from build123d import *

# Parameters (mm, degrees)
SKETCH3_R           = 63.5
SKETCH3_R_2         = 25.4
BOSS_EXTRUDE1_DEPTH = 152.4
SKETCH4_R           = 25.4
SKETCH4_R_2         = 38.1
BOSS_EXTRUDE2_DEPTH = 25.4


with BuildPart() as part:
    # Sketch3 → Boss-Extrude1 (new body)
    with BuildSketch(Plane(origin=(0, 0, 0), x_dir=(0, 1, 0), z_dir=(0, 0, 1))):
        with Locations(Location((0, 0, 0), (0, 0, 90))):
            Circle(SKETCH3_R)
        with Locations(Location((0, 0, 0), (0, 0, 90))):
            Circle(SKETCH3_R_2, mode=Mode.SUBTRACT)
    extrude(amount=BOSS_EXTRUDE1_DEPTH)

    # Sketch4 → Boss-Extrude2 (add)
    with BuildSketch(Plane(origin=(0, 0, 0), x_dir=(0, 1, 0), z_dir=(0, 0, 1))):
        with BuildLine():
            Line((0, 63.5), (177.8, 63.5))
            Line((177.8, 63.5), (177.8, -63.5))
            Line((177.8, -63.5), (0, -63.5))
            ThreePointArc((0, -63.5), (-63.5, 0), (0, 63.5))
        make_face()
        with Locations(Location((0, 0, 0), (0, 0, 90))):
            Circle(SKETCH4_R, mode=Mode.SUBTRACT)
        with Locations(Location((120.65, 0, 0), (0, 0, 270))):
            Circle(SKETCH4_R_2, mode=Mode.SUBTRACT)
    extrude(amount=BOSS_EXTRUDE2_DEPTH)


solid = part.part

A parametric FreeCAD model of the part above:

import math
import FreeCAD as App
import Part
import Sketcher
Q = App.Units.Quantity

doc = App.newDocument("Part")
body = doc.addObject("PartDesign::Body", "Body")

# Sketch on XY plane
sketch1 = body.newObject("Sketcher::SketchObject", "Sketch")
sketch1.AttachmentSupport = (doc.getObject("XY_Plane"), [""])
sketch1.MapMode = "FlatFace"
sketch1.addGeometry(Part.Circle(App.Vector(0, 0, 0), App.Vector(0, 0, 1), 64), False)
sketch1.addGeometry(Part.Circle(App.Vector(0, 0, 0), App.Vector(0, 0, 1), 25), False)
sketch1.addConstraint(Sketcher.Constraint("Coincident", 0, 3, -1, 1))
sketch1.addConstraint(Sketcher.Constraint("Coincident", 1, 3, -1, 1))
sketch1.addConstraint(Sketcher.Constraint("Diameter", 0, Q("5 in")))
sketch1.addConstraint(Sketcher.Constraint("Diameter", 1, Q("2 in")))
pad1 = body.newObject("PartDesign::Pad", "Pad")
pad1.Profile = sketch1
pad1.Length = Q("6 in")

# Sketch on XY plane
sketch2 = body.newObject("Sketcher::SketchObject", "Sketch001")
sketch2.AttachmentSupport = (doc.getObject("XY_Plane"), [""])
sketch2.MapMode = "FlatFace"
sketch2.addGeometry(Part.LineSegment(App.Vector(-64, 178, 0), App.Vector(-64, 0, 0)), False)
sketch2.addGeometry(Part.ArcOfCircle(Part.Circle(App.Vector(0, 0, 0), App.Vector(0, 0, 1), 64), math.radians(180), math.radians(360)), False)
sketch2.addGeometry(Part.LineSegment(App.Vector(64, 0, 0), App.Vector(64, 178, 0)), False)
sketch2.addGeometry(Part.LineSegment(App.Vector(64, 178, 0), App.Vector(-64, 178, 0)), False)
sketch2.addGeometry(Part.Circle(App.Vector(0, 121, 0), App.Vector(0, 0, 1), 38), False)
sketch2.addGeometry(Part.Circle(App.Vector(0, 0, 0), App.Vector(0, 0, 1), 25), False)
sketch2.addConstraint(Sketcher.Constraint("Tangent", 0, 2, 1, 1))
sketch2.addConstraint(Sketcher.Constraint("Tangent", 1, 2, 2, 1))
sketch2.addConstraint(Sketcher.Constraint("Coincident", 2, 2, 3, 1))
sketch2.addConstraint(Sketcher.Constraint("Coincident", 3, 2, 0, 1))
sketch2.addConstraint(Sketcher.Constraint("Vertical", 0))
sketch2.addConstraint(Sketcher.Constraint("Vertical", 2))
sketch2.addConstraint(Sketcher.Constraint("Horizontal", 3))
sketch2.addConstraint(Sketcher.Constraint("Coincident", 1, 3, -1, 1))
sketch2.addConstraint(Sketcher.Constraint("Coincident", 5, 3, -1, 1))
sketch2.addConstraint(Sketcher.Constraint("PointOnObject", 4, 3, -2))
sketch2.addConstraint(Sketcher.Constraint("Diameter", 4, Q("3 in")))
sketch2.addConstraint(Sketcher.Constraint("Diameter", 5, Q("2 in")))
sketch2.addConstraint(Sketcher.Constraint("Radius", 1, Q("2.5 in")))
sketch2.addConstraint(Sketcher.Constraint("DistanceY", 0, 2, 0, 1, Q("7 in")))
sketch2.addConstraint(Sketcher.Constraint("DistanceY", -1, 1, 4, 3, Q("4.75 in")))
pad2 = body.newObject("PartDesign::Pad", "Pad001")
pad2.Profile = sketch2
pad2.Length = Q("1 in")

doc.recompute()
